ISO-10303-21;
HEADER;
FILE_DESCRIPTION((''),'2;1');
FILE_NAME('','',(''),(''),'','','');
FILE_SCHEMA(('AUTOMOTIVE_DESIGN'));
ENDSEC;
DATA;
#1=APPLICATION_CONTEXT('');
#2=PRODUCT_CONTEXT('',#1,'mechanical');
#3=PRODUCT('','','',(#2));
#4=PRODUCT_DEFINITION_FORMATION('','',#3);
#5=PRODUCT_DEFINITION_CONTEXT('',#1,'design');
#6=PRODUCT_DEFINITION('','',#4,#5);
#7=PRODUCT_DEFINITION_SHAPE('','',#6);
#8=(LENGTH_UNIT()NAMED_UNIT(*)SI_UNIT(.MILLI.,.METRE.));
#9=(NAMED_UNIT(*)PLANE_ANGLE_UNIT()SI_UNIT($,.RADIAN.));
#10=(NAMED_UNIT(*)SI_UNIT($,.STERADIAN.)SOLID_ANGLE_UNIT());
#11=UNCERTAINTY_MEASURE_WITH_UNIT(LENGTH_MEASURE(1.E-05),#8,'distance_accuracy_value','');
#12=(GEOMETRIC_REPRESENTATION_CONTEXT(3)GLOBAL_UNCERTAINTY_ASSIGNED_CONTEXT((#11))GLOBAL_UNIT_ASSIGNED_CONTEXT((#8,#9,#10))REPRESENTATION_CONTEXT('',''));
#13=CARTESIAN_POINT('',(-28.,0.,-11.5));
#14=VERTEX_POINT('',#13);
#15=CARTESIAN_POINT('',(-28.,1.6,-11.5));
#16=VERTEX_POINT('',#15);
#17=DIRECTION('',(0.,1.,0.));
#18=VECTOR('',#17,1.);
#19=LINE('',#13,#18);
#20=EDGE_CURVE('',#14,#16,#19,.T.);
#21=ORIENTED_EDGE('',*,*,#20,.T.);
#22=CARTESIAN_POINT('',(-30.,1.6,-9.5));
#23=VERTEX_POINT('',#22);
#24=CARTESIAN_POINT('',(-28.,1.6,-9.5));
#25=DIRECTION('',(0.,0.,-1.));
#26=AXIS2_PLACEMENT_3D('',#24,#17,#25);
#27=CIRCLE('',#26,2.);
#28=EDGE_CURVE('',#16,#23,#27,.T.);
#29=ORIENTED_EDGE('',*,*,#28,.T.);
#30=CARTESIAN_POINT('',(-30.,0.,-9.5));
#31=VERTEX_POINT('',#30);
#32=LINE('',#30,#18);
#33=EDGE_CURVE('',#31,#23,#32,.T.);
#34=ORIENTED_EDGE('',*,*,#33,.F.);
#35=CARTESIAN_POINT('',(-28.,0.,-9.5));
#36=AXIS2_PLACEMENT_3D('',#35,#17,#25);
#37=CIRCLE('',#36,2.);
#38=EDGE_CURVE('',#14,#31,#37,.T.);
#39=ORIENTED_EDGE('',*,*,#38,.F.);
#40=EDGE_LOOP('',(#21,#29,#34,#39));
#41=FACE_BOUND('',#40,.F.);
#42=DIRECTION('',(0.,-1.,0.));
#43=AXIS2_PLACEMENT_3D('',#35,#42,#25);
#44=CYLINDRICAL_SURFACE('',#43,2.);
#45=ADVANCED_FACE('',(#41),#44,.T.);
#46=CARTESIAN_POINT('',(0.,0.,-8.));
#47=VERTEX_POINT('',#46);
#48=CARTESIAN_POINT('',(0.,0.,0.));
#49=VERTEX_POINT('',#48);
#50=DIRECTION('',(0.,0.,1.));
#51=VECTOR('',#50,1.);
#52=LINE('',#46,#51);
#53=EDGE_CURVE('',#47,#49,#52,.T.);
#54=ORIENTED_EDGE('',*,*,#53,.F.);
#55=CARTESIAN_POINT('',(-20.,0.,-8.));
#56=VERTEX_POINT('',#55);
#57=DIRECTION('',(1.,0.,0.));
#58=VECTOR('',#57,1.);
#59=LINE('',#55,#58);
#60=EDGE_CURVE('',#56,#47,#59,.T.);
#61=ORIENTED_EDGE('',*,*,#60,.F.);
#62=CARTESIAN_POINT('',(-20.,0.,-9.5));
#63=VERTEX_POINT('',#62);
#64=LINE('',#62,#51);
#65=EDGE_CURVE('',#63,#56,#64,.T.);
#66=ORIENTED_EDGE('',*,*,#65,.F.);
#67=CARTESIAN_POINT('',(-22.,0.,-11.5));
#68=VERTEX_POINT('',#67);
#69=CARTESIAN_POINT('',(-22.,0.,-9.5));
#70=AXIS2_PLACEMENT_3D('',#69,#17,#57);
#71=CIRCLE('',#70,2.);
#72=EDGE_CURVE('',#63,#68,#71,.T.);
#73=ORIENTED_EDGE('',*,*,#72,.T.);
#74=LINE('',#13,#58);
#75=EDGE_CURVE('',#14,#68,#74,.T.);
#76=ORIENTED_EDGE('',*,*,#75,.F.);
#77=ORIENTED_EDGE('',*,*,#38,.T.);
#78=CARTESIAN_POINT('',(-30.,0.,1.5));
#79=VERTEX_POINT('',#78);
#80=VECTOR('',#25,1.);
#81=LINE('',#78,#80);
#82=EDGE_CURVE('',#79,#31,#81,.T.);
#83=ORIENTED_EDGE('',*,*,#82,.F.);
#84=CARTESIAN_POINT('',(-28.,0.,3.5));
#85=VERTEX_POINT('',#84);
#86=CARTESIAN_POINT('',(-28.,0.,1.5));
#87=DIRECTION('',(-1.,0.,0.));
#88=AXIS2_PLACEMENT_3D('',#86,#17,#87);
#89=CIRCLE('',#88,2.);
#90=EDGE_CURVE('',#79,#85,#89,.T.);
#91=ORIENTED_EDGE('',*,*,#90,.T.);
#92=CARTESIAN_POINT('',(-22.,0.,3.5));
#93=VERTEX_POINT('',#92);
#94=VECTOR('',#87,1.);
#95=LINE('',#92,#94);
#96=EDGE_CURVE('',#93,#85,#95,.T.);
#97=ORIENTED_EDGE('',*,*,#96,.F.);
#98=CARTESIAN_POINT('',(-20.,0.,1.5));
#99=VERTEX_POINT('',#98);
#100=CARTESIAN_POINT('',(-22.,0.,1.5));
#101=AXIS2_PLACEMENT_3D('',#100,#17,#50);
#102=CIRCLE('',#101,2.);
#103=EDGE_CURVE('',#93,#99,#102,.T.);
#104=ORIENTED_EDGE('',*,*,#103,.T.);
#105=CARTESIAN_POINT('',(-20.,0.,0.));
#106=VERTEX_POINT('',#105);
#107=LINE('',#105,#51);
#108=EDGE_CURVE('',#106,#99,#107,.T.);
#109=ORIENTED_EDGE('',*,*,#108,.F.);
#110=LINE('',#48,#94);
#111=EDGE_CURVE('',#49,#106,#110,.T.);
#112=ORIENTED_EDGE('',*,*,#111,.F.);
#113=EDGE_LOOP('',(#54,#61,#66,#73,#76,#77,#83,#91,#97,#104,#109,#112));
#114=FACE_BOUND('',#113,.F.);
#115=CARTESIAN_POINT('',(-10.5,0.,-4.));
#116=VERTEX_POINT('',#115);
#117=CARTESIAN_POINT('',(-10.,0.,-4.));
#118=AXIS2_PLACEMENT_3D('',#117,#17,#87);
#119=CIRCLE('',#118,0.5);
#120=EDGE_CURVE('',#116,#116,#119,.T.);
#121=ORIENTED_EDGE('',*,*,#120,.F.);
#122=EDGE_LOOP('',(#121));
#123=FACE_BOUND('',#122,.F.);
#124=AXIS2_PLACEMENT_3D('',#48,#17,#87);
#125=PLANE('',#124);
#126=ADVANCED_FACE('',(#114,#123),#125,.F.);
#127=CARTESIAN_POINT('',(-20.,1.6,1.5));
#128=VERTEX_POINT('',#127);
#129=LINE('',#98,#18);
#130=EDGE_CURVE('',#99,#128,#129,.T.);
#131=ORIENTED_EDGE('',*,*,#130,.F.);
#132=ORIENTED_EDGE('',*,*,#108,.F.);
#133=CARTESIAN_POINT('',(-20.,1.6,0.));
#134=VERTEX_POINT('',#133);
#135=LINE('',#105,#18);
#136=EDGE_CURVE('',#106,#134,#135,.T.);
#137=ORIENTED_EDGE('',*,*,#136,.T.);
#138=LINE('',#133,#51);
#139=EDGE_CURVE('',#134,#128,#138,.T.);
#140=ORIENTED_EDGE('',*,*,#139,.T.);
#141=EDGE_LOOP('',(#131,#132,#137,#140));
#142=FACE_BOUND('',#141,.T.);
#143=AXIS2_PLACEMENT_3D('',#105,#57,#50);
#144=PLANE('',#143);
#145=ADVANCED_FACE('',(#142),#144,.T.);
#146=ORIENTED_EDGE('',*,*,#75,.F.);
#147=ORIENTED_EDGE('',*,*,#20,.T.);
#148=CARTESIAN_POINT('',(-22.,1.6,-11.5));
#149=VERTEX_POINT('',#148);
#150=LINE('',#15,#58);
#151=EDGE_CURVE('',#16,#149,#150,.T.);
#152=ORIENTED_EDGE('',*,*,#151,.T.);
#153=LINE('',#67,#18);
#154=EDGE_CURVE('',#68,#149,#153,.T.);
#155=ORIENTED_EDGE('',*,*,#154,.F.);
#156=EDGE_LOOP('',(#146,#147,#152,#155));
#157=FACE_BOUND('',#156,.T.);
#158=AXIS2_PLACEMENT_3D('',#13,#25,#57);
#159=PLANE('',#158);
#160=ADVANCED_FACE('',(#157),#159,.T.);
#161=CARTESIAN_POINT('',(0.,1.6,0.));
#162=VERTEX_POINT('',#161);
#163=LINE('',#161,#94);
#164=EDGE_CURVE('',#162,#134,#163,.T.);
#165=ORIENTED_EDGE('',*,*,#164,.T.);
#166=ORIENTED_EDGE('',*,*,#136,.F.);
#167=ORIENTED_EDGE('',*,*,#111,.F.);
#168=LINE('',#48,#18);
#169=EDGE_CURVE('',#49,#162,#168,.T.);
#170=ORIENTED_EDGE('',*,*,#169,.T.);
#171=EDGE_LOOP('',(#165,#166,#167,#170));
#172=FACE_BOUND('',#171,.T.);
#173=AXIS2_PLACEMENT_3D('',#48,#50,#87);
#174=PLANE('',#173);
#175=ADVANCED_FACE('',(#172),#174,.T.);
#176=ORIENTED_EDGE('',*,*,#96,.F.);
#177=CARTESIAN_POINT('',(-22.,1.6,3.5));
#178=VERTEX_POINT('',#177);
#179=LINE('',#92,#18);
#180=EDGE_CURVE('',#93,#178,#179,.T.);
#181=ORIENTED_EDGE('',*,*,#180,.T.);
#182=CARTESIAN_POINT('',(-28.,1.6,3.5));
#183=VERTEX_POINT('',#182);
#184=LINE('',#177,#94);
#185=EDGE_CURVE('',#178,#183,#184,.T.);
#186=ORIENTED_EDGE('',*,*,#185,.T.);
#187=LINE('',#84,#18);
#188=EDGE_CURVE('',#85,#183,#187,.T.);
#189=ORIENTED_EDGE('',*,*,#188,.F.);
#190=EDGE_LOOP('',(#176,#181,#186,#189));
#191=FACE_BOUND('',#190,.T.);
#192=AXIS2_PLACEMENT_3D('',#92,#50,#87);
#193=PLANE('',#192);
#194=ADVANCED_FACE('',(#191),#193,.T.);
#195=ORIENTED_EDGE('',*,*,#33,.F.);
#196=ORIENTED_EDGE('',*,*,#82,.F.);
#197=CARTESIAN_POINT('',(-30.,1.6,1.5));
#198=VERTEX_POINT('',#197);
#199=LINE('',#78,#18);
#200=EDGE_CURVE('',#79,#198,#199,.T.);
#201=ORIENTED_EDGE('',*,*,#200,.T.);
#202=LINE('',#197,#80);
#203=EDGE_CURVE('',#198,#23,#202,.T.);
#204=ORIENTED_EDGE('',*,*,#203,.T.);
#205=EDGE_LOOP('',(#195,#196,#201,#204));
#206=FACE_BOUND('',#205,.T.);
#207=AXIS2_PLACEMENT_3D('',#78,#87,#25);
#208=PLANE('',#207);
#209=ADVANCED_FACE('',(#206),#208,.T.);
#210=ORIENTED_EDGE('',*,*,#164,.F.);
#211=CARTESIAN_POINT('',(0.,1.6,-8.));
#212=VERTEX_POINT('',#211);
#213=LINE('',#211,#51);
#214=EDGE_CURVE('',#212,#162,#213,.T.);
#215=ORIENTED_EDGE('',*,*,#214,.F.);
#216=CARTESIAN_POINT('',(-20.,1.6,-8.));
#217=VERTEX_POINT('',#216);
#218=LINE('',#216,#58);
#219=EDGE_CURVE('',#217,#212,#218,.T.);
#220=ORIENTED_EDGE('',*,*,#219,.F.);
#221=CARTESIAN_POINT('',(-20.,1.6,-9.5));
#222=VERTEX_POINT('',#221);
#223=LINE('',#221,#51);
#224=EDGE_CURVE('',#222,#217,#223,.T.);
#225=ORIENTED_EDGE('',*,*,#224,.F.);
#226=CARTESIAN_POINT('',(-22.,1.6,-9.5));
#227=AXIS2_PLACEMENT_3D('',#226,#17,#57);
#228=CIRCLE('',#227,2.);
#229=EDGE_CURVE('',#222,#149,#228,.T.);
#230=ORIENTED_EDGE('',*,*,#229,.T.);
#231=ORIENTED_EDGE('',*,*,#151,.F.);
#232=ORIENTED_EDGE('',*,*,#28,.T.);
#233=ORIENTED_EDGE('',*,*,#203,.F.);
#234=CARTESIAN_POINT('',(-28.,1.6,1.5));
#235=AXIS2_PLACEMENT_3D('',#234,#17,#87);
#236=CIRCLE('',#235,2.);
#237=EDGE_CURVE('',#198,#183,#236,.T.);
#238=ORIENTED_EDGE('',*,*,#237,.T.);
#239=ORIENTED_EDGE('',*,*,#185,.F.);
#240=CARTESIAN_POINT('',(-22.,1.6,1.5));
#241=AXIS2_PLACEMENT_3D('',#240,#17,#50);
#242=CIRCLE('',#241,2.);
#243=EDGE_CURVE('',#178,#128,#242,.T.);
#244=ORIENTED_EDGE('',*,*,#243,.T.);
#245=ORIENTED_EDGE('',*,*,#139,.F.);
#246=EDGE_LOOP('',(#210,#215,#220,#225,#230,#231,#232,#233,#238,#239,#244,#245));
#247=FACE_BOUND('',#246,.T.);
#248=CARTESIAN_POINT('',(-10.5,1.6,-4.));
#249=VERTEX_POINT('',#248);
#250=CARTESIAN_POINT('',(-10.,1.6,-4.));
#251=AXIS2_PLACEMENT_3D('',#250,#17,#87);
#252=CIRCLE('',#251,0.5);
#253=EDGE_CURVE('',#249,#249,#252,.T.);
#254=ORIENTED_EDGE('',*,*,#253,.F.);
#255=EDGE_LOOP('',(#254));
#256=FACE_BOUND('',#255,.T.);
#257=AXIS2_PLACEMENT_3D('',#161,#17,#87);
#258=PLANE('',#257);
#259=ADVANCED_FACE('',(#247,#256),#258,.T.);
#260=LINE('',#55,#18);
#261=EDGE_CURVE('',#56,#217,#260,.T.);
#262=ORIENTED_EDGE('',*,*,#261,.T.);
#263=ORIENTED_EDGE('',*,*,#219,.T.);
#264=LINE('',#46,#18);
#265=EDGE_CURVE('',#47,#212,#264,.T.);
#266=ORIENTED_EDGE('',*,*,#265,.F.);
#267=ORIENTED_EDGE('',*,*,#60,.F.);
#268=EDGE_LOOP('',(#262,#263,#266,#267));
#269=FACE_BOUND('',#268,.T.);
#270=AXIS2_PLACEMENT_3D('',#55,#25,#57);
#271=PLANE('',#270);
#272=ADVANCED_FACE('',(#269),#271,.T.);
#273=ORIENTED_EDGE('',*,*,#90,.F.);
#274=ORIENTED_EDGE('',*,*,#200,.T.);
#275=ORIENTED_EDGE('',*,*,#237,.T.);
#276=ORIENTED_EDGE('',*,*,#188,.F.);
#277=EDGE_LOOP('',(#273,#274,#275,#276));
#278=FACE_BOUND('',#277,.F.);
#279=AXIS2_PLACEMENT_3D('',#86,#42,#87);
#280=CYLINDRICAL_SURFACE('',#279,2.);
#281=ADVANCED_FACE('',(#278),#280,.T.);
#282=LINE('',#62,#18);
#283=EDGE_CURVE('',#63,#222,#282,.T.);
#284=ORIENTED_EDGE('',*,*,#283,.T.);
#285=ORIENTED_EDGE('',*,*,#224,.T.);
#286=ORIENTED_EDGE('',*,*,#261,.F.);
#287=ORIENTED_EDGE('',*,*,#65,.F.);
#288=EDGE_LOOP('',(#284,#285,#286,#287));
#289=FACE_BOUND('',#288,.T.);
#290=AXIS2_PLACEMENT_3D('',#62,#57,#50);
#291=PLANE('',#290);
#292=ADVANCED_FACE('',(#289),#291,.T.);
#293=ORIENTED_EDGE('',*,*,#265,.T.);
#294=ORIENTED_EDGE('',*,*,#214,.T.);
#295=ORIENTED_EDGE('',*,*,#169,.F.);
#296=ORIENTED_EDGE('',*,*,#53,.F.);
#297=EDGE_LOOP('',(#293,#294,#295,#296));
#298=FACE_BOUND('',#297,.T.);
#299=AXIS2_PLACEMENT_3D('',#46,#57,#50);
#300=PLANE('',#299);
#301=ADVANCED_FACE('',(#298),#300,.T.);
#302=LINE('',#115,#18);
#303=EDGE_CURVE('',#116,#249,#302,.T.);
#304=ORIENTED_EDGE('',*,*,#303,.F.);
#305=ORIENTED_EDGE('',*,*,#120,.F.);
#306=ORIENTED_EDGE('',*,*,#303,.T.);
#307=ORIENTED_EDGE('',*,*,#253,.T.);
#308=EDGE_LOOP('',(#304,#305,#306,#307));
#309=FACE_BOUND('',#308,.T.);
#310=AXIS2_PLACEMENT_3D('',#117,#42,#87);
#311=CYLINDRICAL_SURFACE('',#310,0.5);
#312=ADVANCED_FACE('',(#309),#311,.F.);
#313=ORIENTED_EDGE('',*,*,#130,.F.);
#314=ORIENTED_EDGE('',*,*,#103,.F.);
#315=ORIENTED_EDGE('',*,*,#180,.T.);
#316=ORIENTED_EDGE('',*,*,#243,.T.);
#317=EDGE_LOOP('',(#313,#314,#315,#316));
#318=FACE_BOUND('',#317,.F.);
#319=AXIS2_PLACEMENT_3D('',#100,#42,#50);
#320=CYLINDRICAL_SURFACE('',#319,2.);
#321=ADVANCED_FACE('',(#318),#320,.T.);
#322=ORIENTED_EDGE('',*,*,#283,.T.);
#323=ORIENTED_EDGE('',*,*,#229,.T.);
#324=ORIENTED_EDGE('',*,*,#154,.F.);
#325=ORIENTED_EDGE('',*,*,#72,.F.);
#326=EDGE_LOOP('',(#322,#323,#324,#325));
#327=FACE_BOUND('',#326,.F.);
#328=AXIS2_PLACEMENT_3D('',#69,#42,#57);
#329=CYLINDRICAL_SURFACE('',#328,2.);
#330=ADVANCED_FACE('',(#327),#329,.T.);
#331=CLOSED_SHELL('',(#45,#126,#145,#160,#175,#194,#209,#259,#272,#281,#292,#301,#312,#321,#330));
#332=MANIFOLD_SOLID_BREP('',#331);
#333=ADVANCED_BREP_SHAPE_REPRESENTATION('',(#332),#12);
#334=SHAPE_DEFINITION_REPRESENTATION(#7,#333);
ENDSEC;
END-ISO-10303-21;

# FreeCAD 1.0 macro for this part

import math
import FreeCAD as App
import Part
import Sketcher
Q = App.Units.Quantity

doc = App.newDocument("Part")
body = doc.addObject("PartDesign::Body", "Body")

sketch1 = body.newObject("Sketcher::SketchObject", "Sketch")
sketch1.AttachmentSupport = (doc.getObject("XZ_Plane"), [""])
sketch1.MapMode = "FlatFace"
sketch1.addGeometry(Part.LineSegment(App.Vector(-20, 0, 0), App.Vector(0, 0, 0)), False)
sketch1.addGeometry(Part.LineSegment(App.Vector(0, 0, 0), App.Vector(0, -8, 0)), False)
sketch1.addGeometry(Part.LineSegment(App.Vector(0, -8, 0), App.Vector(-20, -8, 0)), False)
sketch1.addGeometry(Part.LineSegment(App.Vector(-20, -8, 0), App.Vector(-20, -9.5, 0)), False)
sketch1.addGeometry(Part.ArcOfCircle(Part.Circle(App.Vector(-22, -9.5, 0), App.Vector(0, 0, 1), 2), math.radians(-90), math.radians(0)), False)
sketch1.addGeometry(Part.LineSegment(App.Vector(-22, -11.5, 0), App.Vector(-28, -11.5, 0)), False)
sketch1.addGeometry(Part.ArcOfCircle(Part.Circle(App.Vector(-28, -9.5, 0), App.Vector(0, 0, 1), 2), math.radians(180), math.radians(270)), False)
sketch1.addGeometry(Part.LineSegment(App.Vector(-30, -9.5, 0), App.Vector(-30, 1.5, 0)), False)
sketch1.addGeometry(Part.ArcOfCircle(Part.Circle(App.Vector(-28, 1.5, 0), App.Vector(0, 0, 1), 2), math.radians(90), math.radians(180)), False)
sketch1.addGeometry(Part.LineSegment(App.Vector(-28, 3.5, 0), App.Vector(-22, 3.5, 0)), False)
sketch1.addGeometry(Part.ArcOfCircle(Part.Circle(App.Vector(-22, 1.5, 0), App.Vector(0, 0, 1), 2), math.radians(0), math.radians(90)), False)
sketch1.addGeometry(Part.LineSegment(App.Vector(-20, 1.5, 0), App.Vector(-20, 0, 0)), False)
sketch1.addGeometry(Part.Circle(App.Vector(-10, -4, 0), App.Vector(0, 0, 1), 0.5), False)
sketch1.addConstraint(Sketcher.Constraint("Coincident", 0, 2, 1, 1))
sketch1.addConstraint(Sketcher.Constraint("Coincident", 1, 2, 2, 1))
sketch1.addConstraint(Sketcher.Constraint("Coincident", 2, 2, 3, 1))
sketch1.addConstraint(Sketcher.Constraint("Tangent", 3, 2, 4, 2))
sketch1.addConstraint(Sketcher.Constraint("Tangent", 4, 1, 5, 1))
sketch1.addConstraint(Sketcher.Constraint("Tangent", 5, 2, 6, 2))
sketch1.addConstraint(Sketcher.Constraint("Tangent", 6, 1, 7, 1))
sketch1.addConstraint(Sketcher.Constraint("Tangent", 7, 2, 8, 2))
sketch1.addConstraint(Sketcher.Constraint("Tangent", 8, 1, 9, 1))
sketch1.addConstraint(Sketcher.Constraint("Tangent", 9, 2, 10, 2))
sketch1.addConstraint(Sketcher.Constraint("Tangent", 10, 1, 11, 1))
sketch1.addConstraint(Sketcher.Constraint("Coincident", 11, 2, 0, 1))
sketch1.addConstraint(Sketcher.Constraint("Horizontal", 0))
sketch1.addConstraint(Sketcher.Constraint("Vertical", 1))
sketch1.addConstraint(Sketcher.Constraint("Horizontal", 2))
sketch1.addConstraint(Sketcher.Constraint("Vertical", 3))
sketch1.addConstraint(Sketcher.Constraint("Horizontal", 5))
sketch1.addConstraint(Sketcher.Constraint("Vertical", 7))
sketch1.addConstraint(Sketcher.Constraint("Horizontal", 9))
sketch1.addConstraint(Sketcher.Constraint("Vertical", 11))
sketch1.addConstraint(Sketcher.Constraint("Coincident", 0, 2, -1, 1))
sketch1.addConstraint(Sketcher.Constraint("Equal", 4, 6))
sketch1.addConstraint(Sketcher.Constraint("Equal", 6, 8))
sketch1.addConstraint(Sketcher.Constraint("Equal", 8, 10))
sketch1.addConstraint(Sketcher.Constraint("Vertical", 4, 3, 10, 3))
sketch1.addConstraint(Sketcher.Constraint("Equal", 3, 11))
sketch1.addConstraint(Sketcher.Constraint("Diameter", 12, Q("1 mm")))
sketch1.addConstraint(Sketcher.Constraint("Radius", 4, Q("2 mm")))
sketch1.addConstraint(Sketcher.Constraint("DistanceX", 0, 1, 0, 2, Q("20 mm")))
sketch1.addConstraint(Sketcher.Constraint("DistanceY", 1, 2, 1, 1, Q("8 mm")))
sketch1.addConstraint(Sketcher.Constraint("DistanceX", 12, 3, -1, 1, Q("10 mm")))
sketch1.addConstraint(Sketcher.Constraint("DistanceX", 6, 3, 2, 2, Q("8 mm")))
sketch1.addConstraint(Sketcher.Constraint("DistanceY", 7, 1, 7, 2, Q("11 mm")))
sketch1.addConstraint(Sketcher.Constraint("DistanceY", 12, 3, -1, 1, Q("4 mm")))
pad1 = body.newObject("PartDesign::Pad", "Pad")
pad1.Profile = sketch1
pad1.Length = 1.6
pad1.Reversed = True

doc.recompute()
